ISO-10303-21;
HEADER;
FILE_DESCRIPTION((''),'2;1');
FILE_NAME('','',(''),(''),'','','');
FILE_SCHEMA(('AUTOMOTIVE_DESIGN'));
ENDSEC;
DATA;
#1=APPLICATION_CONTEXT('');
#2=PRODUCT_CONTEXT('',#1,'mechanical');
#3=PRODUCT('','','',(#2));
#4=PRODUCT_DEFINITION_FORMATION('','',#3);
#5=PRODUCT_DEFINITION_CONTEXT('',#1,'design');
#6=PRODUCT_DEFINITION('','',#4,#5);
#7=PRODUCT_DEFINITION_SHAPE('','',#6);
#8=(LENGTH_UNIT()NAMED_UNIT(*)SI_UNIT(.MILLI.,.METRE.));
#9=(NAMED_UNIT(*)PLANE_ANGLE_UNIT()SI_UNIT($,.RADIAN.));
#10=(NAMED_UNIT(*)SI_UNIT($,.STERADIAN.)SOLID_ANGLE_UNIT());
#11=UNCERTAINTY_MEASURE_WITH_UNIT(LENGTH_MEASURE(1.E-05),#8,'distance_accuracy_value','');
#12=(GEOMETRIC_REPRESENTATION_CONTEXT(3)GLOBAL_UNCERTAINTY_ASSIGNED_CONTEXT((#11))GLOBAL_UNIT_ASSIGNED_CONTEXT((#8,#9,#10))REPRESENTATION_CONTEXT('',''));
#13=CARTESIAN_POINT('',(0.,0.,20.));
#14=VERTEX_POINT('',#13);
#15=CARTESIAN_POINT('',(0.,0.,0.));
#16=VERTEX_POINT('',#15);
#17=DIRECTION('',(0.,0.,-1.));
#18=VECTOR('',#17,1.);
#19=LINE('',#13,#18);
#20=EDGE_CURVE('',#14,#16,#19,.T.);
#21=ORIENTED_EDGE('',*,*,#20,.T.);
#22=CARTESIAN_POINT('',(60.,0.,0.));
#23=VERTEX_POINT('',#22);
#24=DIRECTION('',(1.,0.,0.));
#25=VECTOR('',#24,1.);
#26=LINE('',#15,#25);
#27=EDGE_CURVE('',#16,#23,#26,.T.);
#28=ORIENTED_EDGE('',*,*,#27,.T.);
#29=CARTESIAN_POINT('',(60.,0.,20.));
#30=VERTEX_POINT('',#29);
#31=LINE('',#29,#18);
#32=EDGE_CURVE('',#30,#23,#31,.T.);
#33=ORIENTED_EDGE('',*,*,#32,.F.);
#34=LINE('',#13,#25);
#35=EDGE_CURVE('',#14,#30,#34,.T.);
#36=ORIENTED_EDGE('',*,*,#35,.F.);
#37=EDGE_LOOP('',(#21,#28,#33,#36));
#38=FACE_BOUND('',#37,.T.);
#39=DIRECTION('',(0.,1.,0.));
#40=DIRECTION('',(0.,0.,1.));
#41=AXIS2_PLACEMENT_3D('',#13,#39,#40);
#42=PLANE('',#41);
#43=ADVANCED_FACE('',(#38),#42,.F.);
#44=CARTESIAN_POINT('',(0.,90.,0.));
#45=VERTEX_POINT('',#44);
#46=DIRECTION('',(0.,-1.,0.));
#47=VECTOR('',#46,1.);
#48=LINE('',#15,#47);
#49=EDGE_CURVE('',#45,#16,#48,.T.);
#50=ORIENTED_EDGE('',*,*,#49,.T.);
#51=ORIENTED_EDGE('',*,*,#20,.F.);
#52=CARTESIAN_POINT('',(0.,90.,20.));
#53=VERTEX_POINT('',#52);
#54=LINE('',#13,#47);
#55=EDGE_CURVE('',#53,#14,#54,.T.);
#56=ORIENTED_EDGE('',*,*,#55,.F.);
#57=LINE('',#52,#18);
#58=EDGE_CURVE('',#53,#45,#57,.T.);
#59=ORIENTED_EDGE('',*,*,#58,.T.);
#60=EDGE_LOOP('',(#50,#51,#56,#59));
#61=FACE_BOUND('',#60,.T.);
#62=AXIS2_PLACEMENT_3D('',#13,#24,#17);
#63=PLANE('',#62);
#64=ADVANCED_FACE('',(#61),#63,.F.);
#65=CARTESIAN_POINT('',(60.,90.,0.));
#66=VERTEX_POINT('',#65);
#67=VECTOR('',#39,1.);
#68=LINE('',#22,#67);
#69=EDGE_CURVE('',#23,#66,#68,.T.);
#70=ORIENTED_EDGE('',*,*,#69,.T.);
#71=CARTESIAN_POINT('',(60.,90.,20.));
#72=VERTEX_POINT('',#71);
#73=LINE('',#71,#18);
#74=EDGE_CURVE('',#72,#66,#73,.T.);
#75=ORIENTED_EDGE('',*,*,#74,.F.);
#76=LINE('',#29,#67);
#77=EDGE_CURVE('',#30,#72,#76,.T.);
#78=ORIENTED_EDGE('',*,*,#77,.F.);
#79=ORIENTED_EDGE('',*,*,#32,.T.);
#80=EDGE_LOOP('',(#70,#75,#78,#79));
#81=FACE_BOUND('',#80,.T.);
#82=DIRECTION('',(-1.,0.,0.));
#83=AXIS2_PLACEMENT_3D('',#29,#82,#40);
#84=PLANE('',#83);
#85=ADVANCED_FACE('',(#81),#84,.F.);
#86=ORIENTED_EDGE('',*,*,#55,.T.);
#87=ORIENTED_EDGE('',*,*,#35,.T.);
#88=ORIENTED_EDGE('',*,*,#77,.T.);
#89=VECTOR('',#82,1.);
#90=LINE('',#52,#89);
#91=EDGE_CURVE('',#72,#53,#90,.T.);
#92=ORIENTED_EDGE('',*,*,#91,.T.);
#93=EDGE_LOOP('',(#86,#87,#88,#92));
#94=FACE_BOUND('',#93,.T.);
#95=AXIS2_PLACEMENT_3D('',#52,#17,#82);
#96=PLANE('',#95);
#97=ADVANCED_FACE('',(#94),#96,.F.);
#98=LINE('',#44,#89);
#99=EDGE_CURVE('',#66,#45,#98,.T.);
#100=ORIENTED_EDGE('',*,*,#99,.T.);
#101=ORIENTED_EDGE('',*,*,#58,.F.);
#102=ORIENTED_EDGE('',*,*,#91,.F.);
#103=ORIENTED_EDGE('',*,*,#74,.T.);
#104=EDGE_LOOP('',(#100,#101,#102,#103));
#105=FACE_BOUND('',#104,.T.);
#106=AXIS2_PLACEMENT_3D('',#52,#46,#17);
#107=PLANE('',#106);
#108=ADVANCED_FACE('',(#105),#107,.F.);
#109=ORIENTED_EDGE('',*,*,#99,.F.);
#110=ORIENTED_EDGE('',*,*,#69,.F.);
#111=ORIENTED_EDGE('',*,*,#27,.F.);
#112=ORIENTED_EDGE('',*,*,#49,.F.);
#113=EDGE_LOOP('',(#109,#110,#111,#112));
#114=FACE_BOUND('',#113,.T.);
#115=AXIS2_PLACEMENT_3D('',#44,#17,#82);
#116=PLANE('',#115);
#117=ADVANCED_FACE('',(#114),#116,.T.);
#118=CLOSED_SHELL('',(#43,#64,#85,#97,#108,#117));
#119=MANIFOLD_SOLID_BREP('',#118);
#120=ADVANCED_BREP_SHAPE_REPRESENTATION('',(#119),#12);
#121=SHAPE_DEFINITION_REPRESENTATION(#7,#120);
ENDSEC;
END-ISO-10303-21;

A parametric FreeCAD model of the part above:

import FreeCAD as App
import Part
import Sketcher
Q = App.Units.Quantity


def add_polygon(sketch, points):
    """Adds a closed chain of lines whose ends are joined by coincident constraints."""
    first, n = sketch.GeometryCount, len(points)
    for a, b in zip(points, points[1:] + points[:1]):
        sketch.addGeometry(Part.LineSegment(App.Vector(*a, 0), App.Vector(*b, 0)), False)
    for i in range(n):
        sketch.addConstraint(Sketcher.Constraint("Coincident", first + i, 2, first + (i + 1) % n, 1))

doc = App.newDocument("Part")
body = doc.addObject("PartDesign::Body", "Body")

# Sketch on XY plane
sketch1 = doc.addObject("Sketcher::SketchObject", "Sketch")
body.addObject(sketch1)
sketch1.AttachmentSupport = (doc.XY_Plane, [""])
sketch1.MapMode = "FlatFace"
add_polygon(sketch1, [(0, 90), (0, 0), (60, 0), (60, 90)])  # lines 0-3
sketch1.addConstraint([
    Sketcher.Constraint("Vertical", 0),
    Sketcher.Constraint("Horizontal", 1),
    Sketcher.Constraint("Vertical", 2),
    Sketcher.Constraint("Horizontal", 3),
    Sketcher.Constraint("Coincident", 0, 2, -1, 1),
    Sketcher.Constraint("DistanceX", 1, 1, 1, 2, Q("60 mm")),
    Sketcher.Constraint("DistanceY", 0, 2, 0, 1, Q("90 mm")),
])
pad1 = doc.addObject("PartDesign::Pad", "Pad")
body.addObject(pad1)
pad1.Profile = sketch1
pad1.Length = 20

doc.recompute()
